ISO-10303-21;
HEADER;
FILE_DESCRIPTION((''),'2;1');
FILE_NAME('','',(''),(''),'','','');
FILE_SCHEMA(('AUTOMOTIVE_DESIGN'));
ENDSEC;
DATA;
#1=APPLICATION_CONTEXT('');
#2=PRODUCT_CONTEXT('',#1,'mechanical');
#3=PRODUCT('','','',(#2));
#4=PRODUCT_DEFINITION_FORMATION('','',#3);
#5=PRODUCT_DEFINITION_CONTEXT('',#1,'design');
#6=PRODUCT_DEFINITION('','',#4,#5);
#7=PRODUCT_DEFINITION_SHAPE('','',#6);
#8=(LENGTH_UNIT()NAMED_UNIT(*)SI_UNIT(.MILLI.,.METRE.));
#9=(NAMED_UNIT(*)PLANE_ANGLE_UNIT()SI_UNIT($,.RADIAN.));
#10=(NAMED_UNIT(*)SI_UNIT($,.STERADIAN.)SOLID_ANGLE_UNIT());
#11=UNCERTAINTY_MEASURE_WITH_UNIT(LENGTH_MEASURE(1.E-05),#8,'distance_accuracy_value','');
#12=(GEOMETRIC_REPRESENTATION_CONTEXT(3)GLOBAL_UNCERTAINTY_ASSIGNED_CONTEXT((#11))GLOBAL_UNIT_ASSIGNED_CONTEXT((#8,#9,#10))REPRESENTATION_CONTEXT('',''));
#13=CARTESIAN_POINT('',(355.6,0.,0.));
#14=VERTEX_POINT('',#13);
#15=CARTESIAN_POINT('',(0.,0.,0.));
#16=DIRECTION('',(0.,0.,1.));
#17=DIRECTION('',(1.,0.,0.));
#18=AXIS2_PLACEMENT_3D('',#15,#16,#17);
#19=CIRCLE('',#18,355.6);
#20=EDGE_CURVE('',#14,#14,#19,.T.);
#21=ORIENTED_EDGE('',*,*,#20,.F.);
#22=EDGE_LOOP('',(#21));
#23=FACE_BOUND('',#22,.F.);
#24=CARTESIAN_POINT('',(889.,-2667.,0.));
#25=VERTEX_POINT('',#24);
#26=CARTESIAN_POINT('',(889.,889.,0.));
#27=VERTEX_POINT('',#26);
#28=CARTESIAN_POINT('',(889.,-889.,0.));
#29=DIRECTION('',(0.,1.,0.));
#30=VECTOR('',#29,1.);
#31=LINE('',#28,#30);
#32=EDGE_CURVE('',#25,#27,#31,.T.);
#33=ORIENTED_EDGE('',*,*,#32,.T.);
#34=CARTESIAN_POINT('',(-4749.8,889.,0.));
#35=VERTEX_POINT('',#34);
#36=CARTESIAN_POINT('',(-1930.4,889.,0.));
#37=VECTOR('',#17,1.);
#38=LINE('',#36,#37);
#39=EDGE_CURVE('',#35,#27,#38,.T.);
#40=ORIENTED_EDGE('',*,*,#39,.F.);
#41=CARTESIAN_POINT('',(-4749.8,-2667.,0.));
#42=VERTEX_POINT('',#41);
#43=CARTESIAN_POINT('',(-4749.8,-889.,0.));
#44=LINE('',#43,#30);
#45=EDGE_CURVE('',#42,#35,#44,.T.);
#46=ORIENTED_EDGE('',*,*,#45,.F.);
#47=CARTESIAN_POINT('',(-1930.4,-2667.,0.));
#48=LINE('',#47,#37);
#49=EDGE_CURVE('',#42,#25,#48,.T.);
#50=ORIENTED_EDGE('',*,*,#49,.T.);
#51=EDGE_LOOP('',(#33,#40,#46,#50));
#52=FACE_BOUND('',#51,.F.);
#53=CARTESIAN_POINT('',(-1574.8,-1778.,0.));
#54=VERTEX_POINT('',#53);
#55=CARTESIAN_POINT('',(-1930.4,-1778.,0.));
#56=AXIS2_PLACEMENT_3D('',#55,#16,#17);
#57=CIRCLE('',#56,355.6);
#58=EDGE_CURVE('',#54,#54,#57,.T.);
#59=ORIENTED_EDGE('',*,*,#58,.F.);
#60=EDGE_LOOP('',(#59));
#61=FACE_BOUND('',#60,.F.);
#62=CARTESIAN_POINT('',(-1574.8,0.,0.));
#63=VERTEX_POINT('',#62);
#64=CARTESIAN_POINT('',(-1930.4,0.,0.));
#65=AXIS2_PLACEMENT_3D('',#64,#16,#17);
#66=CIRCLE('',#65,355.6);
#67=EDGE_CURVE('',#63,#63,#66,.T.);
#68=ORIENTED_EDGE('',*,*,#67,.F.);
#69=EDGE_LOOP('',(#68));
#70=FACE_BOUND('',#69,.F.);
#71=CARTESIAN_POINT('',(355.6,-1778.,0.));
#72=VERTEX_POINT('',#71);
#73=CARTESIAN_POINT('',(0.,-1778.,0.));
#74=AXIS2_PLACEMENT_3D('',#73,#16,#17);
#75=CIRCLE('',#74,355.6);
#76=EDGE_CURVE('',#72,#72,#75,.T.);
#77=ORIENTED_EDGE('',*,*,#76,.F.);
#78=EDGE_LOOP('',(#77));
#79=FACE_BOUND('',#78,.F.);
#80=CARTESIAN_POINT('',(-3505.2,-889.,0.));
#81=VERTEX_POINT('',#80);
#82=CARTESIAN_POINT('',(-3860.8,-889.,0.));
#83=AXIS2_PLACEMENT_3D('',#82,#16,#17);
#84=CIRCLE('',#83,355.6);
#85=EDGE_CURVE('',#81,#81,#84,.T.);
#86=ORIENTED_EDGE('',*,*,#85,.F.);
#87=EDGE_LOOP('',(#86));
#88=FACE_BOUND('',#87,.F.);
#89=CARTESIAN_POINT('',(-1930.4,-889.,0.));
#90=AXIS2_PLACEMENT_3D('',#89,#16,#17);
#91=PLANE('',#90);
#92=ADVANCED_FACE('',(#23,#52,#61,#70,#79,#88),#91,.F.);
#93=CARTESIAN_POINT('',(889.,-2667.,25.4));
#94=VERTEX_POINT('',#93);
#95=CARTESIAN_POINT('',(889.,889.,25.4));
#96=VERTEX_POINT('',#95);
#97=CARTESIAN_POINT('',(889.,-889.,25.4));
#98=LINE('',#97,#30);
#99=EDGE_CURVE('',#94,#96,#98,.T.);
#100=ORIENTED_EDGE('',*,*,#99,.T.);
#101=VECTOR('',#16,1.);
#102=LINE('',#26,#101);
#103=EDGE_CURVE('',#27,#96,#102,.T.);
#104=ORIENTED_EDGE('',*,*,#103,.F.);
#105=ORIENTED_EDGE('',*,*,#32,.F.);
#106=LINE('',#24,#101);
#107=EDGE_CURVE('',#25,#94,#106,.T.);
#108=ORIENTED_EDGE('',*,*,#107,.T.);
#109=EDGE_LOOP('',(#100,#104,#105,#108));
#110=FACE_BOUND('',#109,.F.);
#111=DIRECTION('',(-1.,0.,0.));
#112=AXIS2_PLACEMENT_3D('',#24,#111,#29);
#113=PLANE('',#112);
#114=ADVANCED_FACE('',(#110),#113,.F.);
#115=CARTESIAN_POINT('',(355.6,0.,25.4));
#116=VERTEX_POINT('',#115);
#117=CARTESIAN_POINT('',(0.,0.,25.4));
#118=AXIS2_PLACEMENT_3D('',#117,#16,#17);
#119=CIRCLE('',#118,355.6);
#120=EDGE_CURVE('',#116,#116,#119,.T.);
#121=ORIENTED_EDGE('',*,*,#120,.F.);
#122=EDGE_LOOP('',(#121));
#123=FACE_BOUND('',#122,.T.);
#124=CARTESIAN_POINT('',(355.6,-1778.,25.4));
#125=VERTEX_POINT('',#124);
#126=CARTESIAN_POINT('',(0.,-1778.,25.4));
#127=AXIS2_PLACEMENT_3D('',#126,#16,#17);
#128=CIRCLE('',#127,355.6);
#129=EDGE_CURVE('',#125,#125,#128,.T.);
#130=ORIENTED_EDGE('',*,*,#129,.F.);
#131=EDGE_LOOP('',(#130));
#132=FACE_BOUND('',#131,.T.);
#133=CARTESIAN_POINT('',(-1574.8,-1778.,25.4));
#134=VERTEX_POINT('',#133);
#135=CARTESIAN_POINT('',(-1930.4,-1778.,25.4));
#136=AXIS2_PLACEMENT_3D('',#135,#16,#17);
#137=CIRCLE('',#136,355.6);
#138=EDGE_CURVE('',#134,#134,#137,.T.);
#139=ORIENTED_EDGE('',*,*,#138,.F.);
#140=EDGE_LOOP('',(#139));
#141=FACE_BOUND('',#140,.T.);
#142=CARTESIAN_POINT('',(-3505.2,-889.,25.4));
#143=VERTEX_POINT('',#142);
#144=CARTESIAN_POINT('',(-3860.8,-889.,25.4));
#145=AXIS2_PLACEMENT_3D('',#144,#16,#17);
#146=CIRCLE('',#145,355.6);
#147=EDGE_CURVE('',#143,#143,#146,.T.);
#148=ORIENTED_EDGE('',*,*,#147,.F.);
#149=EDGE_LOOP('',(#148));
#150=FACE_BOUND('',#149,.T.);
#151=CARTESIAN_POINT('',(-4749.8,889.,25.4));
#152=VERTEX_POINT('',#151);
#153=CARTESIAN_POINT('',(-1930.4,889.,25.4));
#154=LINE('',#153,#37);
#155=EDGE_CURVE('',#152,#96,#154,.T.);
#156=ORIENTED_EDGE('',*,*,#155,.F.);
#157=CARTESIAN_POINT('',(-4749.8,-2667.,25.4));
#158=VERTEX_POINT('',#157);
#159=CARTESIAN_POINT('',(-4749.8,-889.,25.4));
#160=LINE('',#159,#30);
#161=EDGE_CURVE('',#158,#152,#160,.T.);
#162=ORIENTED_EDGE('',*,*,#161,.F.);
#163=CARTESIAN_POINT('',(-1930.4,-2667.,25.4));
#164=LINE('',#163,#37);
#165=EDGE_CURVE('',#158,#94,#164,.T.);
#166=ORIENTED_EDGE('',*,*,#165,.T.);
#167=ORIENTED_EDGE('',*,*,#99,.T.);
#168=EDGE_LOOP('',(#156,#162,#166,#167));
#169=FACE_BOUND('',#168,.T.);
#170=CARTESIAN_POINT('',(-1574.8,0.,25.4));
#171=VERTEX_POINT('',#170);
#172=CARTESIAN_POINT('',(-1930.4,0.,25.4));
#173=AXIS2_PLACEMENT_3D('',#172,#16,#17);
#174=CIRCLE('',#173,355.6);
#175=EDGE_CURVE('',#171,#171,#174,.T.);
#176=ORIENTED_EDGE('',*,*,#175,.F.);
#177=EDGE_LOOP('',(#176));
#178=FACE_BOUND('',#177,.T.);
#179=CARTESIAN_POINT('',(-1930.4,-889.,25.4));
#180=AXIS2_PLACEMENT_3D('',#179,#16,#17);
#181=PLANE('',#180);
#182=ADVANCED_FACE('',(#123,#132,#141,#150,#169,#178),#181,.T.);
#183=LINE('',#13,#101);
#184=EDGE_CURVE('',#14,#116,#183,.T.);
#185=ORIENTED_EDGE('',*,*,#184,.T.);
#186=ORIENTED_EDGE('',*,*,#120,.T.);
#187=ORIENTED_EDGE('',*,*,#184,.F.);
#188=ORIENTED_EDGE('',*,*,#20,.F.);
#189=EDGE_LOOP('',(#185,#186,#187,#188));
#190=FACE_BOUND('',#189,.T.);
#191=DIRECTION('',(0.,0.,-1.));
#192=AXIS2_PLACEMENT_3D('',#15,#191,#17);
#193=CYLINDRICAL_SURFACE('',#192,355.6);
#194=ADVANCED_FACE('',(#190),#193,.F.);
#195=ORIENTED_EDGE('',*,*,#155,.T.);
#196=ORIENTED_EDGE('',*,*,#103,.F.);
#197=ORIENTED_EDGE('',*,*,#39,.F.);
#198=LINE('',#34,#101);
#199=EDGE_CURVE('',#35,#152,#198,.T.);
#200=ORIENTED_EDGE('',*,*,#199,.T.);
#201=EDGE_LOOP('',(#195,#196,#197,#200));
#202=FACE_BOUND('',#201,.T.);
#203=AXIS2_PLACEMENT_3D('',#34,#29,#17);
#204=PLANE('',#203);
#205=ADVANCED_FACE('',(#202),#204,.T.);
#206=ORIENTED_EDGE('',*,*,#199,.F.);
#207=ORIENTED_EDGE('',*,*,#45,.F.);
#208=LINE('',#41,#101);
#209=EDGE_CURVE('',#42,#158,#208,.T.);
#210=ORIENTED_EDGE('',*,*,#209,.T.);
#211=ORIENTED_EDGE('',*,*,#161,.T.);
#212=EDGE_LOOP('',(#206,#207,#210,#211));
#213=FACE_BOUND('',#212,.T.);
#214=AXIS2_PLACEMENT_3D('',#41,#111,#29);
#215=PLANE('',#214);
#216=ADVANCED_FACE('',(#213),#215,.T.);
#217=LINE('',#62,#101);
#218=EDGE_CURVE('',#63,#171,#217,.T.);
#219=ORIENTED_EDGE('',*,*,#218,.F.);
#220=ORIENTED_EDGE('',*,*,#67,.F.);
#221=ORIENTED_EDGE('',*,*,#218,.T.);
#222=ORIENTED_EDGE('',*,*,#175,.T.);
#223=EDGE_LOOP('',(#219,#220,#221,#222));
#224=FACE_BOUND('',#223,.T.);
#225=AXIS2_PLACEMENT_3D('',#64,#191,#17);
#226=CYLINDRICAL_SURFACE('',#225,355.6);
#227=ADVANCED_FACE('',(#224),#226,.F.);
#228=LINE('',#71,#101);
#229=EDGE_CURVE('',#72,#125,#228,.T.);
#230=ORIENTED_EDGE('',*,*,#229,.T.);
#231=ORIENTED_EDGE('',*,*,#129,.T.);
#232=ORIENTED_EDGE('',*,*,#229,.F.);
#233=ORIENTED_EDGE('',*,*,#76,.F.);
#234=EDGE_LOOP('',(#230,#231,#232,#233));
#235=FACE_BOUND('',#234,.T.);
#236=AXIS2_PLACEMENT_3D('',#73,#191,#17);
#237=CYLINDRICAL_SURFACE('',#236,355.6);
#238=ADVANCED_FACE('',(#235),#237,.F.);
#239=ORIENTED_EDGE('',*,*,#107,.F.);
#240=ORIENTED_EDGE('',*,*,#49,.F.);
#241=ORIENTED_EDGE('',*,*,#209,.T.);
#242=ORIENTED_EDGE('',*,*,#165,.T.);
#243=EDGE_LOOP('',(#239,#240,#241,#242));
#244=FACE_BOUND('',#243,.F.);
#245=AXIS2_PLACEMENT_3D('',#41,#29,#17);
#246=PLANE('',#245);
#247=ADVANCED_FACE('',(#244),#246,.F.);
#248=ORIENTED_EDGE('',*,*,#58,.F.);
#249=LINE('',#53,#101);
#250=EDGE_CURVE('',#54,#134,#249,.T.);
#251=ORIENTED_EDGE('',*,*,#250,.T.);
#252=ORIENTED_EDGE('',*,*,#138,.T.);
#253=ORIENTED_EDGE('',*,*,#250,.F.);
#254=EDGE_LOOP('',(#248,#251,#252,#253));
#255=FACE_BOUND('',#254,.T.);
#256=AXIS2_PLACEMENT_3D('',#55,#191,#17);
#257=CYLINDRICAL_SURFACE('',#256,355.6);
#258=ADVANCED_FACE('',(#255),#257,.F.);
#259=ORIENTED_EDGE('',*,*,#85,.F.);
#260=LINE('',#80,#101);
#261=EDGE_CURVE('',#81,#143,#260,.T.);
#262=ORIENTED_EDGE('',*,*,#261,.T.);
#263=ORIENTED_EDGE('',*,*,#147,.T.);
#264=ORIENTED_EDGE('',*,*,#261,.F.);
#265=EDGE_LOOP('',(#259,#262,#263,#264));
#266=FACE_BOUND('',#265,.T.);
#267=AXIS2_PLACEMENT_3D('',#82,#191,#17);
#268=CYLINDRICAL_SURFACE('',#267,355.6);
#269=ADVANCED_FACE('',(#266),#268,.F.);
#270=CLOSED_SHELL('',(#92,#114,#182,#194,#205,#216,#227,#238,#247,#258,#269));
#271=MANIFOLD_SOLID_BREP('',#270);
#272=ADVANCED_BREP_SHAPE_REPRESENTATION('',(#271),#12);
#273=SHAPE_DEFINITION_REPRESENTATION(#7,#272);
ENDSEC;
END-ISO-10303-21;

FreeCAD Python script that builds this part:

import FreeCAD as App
import Part
import Sketcher
Q = App.Units.Quantity


def add_polygon(sketch, points):
    """Adds a closed chain of lines whose ends are joined by coincident constraints."""
    first, n = sketch.GeometryCount, len(points)
    for a, b in zip(points, points[1:] + points[:1]):
        sketch.addGeometry(Part.LineSegment(App.Vector(*a, 0), App.Vector(*b, 0)), False)
    for i in range(n):
        sketch.addConstraint(Sketcher.Constraint("Coincident", first + i, 2, first + (i + 1) % n, 1))

doc = App.newDocument("Part")
body = doc.addObject("PartDesign::Body", "Body")

# Sketch on XY plane
sketch1 = doc.addObject("Sketcher::SketchObject", "Sketch")
body.addObject(sketch1)
sketch1.AttachmentSupport = (doc.XY_Plane, [""])
sketch1.MapMode = "FlatFace"
add_polygon(sketch1, [(-4750, 889), (-4750, -2667), (889, -2667), (889, 889)])  # lines 0-3
sketch1.addGeometry(Part.Circle(App.Vector(-1930, -1778, 0), App.Vector(0, 0, 1), 356), False)  # 4
sketch1.addGeometry(Part.Circle(App.Vector(0, -1778, 0), App.Vector(0, 0, 1), 356), False)  # 5
sketch1.addGeometry(Part.Circle(App.Vector(-3861, -889, 0), App.Vector(0, 0, 1), 356), False)  # 6
sketch1.addGeometry(Part.Circle(App.Vector(-1930, 0, 0), App.Vector(0, 0, 1), 356), False)  # 7
sketch1.addGeometry(Part.Circle(App.Vector(0, 0, 0), App.Vector(0, 0, 1), 356), False)  # 8
sketch1.addConstraint([
    Sketcher.Constraint("Vertical", 0),
    Sketcher.Constraint("Horizontal", 1),
    Sketcher.Constraint("Vertical", 2),
    Sketcher.Constraint("Horizontal", 3),
    Sketcher.Constraint("Coincident", 8, 3, -1, 1),
    Sketcher.Constraint("Equal", 4, 5),
    Sketcher.Constraint("Equal", 5, 6),
    Sketcher.Constraint("Equal", 6, 7),
    Sketcher.Constraint("Equal", 7, 8),
    Sketcher.Constraint("PointOnObject", 5, 3, -2),
    Sketcher.Constraint("PointOnObject", 7, 3, -1),
    Sketcher.Constraint("Horizontal", 4, 3, 5, 3),
    Sketcher.Constraint("Vertical", 4, 3, 7, 3),
    Sketcher.Constraint("Diameter", 4, Q("28 in")),
    Sketcher.Constraint("DistanceX", 1, 1, 1, 2, Q("222 in")),
    Sketcher.Constraint("DistanceY", 0, 2, 0, 1, Q("140 in")),
    Sketcher.Constraint("DistanceX", 4, 3, -1, 1, Q("76 in")),
    Sketcher.Constraint("DistanceY", 4, 3, -1, 1, Q("70 in")),
    Sketcher.Constraint("DistanceX", 6, 3, -1, 1, Q("152 in")),
    Sketcher.Constraint("DistanceY", 6, 3, -1, 1, Q("35 in")),
    Sketcher.Constraint("DistanceX", 0, 2, -1, 1, Q("187 in")),
    Sketcher.Constraint("DistanceY", 0, 2, -1, 1, Q("105 in")),
])
pad1 = doc.addObject("PartDesign::Pad", "Pad")
body.addObject(pad1)
pad1.Profile = sketch1
pad1.Length = Q("1 in")

doc.recompute()
